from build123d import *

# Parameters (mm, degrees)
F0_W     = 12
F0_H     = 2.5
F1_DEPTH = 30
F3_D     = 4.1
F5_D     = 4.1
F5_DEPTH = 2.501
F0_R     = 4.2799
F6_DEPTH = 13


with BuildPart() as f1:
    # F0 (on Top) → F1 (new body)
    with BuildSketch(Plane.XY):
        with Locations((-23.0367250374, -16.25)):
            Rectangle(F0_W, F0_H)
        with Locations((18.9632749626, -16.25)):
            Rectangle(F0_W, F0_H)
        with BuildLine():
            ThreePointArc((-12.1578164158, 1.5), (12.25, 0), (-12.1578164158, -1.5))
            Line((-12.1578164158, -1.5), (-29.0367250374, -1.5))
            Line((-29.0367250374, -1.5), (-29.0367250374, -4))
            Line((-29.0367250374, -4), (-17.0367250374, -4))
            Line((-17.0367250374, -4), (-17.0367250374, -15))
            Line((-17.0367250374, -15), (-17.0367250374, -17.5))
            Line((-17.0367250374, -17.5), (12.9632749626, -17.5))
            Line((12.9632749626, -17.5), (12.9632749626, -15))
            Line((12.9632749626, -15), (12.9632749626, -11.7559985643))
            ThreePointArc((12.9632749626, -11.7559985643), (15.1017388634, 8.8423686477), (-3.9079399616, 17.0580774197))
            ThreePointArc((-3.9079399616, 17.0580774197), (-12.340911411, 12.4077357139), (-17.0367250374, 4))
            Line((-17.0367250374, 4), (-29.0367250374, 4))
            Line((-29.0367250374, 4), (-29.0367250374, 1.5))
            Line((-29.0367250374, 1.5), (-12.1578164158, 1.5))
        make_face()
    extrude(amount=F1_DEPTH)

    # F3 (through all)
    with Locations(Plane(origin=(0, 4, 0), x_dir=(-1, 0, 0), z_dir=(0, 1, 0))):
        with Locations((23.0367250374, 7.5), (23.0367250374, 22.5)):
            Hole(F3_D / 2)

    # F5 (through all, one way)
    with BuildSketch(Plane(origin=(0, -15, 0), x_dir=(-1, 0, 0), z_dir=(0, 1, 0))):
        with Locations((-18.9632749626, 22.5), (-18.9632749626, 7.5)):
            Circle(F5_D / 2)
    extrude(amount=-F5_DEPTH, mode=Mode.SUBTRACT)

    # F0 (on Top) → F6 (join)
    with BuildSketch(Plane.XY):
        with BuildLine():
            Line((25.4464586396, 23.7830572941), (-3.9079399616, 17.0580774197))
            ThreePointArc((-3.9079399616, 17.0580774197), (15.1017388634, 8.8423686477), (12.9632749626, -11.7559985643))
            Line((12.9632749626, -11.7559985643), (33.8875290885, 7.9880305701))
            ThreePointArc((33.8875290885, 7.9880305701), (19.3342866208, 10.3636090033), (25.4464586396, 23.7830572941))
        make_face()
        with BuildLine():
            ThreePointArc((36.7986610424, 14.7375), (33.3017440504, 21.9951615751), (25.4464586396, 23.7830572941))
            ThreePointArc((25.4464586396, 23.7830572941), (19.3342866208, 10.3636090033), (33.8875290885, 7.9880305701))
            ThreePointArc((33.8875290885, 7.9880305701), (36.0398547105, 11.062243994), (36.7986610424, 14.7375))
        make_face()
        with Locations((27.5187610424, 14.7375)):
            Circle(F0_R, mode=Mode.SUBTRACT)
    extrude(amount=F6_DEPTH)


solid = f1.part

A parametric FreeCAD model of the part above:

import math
import FreeCAD as App
import Part
import Sketcher
from FreeCAD import Vector
Q = App.Units.Quantity

doc = App.newDocument("Part")
body = doc.addObject("PartDesign::Body", "Body")

sketch1 = body.newObject("Sketcher::SketchObject", "Sketch")
sketch1.AttachmentSupport = (doc.getObject("XY_Plane"), [""])
sketch1.MapMode = "FlatFace"
sketch1.addGeometry(Part.LineSegment(Vector(-29.036725, -15, 0), Vector(-29.036725, -17.5, 0)), False)
sketch1.addGeometry(Part.LineSegment(Vector(-29.036725, -17.5, 0), Vector(24.963275, -17.5, 0)), False)
sketch1.addGeometry(Part.LineSegment(Vector(24.963275, -17.5, 0), Vector(24.963275, -15, 0)), False)
sketch1.addGeometry(Part.LineSegment(Vector(24.963275, -15, 0), Vector(12.963275, -15, 0)), False)
sketch1.addGeometry(Part.LineSegment(Vector(12.963275, -15, 0), Vector(12.963275, -11.755999, 0)), False)
sketch1.addGeometry(Part.ArcOfCircle(Part.Circle(Vector(0, 0, 0), Vector(0, 0, 1), 17.5), math.radians(-42.203926), math.radians(102.90357)), False)
sketch1.addGeometry(Part.ArcOfCircle(Part.Circle(Vector(0, 0, 0), Vector(0, 0, 1), 17.5), math.radians(102.90357), math.radians(166.78702)), False)
sketch1.addGeometry(Part.LineSegment(Vector(-17.036725, 4, 0), Vector(-29.036725, 4, 0)), False)
sketch1.addGeometry(Part.LineSegment(Vector(-29.036725, 4, 0), Vector(-29.036725, 1.5, 0)), False)
sketch1.addGeometry(Part.LineSegment(Vector(-29.036725, 1.5, 0), Vector(-12.157816, 1.5, 0)), False)
sketch1.addGeometry(Part.ArcOfCircle(Part.Circle(Vector(0, 0, 0), Vector(0, 0, 1), 12.25), math.radians(-172.966539), math.radians(172.966539)), False)
sketch1.addGeometry(Part.LineSegment(Vector(-12.157816, -1.5, 0), Vector(-29.036725, -1.5, 0)), False)
sketch1.addGeometry(Part.LineSegment(Vector(-29.036725, -1.5, 0), Vector(-29.036725, -4, 0)), False)
sketch1.addGeometry(Part.LineSegment(Vector(-29.036725, -4, 0), Vector(-17.036725, -4, 0)), False)
sketch1.addGeometry(Part.LineSegment(Vector(-17.036725, -4, 0), Vector(-17.036725, -15, 0)), False)
sketch1.addGeometry(Part.LineSegment(Vector(-17.036725, -15, 0), Vector(-29.036725, -15, 0)), False)
sketch1.addConstraint(Sketcher.Constraint("Coincident", 0, 2, 1, 1))
sketch1.addConstraint(Sketcher.Constraint("Coincident", 1, 2, 2, 1))
sketch1.addConstraint(Sketcher.Constraint("Coincident", 2, 2, 3, 1))
sketch1.addConstraint(Sketcher.Constraint("Coincident", 3, 2, 4, 1))
sketch1.addConstraint(Sketcher.Constraint("Coincident", 4, 2, 5, 1))
sketch1.addConstraint(Sketcher.Constraint("Tangent", 5, 2, 6, 1))
sketch1.addConstraint(Sketcher.Constraint("Coincident", 6, 2, 7, 1))
sketch1.addConstraint(Sketcher.Constraint("Coincident", 7, 2, 8, 1))
sketch1.addConstraint(Sketcher.Constraint("Coincident", 8, 2, 9, 1))
sketch1.addConstraint(Sketcher.Constraint("Coincident", 9, 2, 10, 2))
sketch1.addConstraint(Sketcher.Constraint("Coincident", 10, 1, 11, 1))
sketch1.addConstraint(Sketcher.Constraint("Coincident", 11, 2, 12, 1))
sketch1.addConstraint(Sketcher.Constraint("Coincident", 12, 2, 13, 1))
sketch1.addConstraint(Sketcher.Constraint("Coincident", 13, 2, 14, 1))
sketch1.addConstraint(Sketcher.Constraint("Coincident", 14, 2, 15, 1))
sketch1.addConstraint(Sketcher.Constraint("Coincident", 15, 2, 0, 1))
sketch1.addConstraint(Sketcher.Constraint("Vertical", 0))
sketch1.addConstraint(Sketcher.Constraint("Horizontal", 1))
sketch1.addConstraint(Sketcher.Constraint("Vertical", 2))
sketch1.addConstraint(Sketcher.Constraint("Horizontal", 3))
sketch1.addConstraint(Sketcher.Constraint("Vertical", 4))
sketch1.addConstraint(Sketcher.Constraint("Horizontal", 7))
sketch1.addConstraint(Sketcher.Constraint("Vertical", 8))
sketch1.addConstraint(Sketcher.Constraint("Horizontal", 9))
sketch1.addConstraint(Sketcher.Constraint("Horizontal", 11))
sketch1.addConstraint(Sketcher.Constraint("Vertical", 12))
sketch1.addConstraint(Sketcher.Constraint("Horizontal", 13))
sketch1.addConstraint(Sketcher.Constraint("Vertical", 14))
sketch1.addConstraint(Sketcher.Constraint("Horizontal", 15))
sketch1.addConstraint(Sketcher.Constraint("Coincident", 5, 3, -1, 1))
sketch1.addConstraint(Sketcher.Constraint("Coincident", 10, 3, -1, 1))
sketch1.addConstraint(Sketcher.Constraint("Equal", 5, 6))
sketch1.addConstraint(Sketcher.Constraint("Symmetric", 8, 2, 11, 2, -1))
sketch1.addConstraint(Sketcher.Constraint("Symmetric", 6, 2, 13, 2, -1))
sketch1.addConstraint(Sketcher.Constraint("Horizontal", 3, 2, 14, 2))
sketch1.addConstraint(Sketcher.Constraint("Vertical", 0, 2, 7, 2))
sketch1.addConstraint(Sketcher.Constraint("Equal", 3, 7))
sketch1.addConstraint(Sketcher.Constraint("Equal", 2, 8))
sketch1.addConstraint(Sketcher.Constraint("Radius", 5, Q("17.5 mm")))
sketch1.addConstraint(Sketcher.Constraint("DistanceX", 1, 1, 1, 2, Q("54 mm")))
sketch1.addConstraint(Sketcher.Constraint("DistanceX", 3, 2, 3, 1, Q("12 mm")))
sketch1.addConstraint(Sketcher.Constraint("DistanceY", 14, 2, 14, 1, Q("11 mm")))
sketch1.addConstraint(Sketcher.Constraint("Radius", 10, Q("12.25 mm")))
sketch1.addConstraint(Sketcher.Constraint("DistanceY", 0, 2, 0, 1, Q("2.5 mm")))
sketch1.addConstraint(Sketcher.Constraint("DistanceY", 2, 2, -1, 1, Q("15 mm")))
sketch1.addConstraint(Sketcher.Constraint("DistanceX", 5, 2, -1, 1, Q("3.90794 mm")))
pad1 = body.newObject("PartDesign::Pad", "Pad")
pad1.Profile = sketch1
pad1.Length = 30

sketch2 = body.newObject("Sketcher::SketchObject", "Sketch001")
sketch2.AttachmentSupport = (doc.getObject("XZ_Plane"), [""])
sketch2.MapMode = "FlatFace"
sketch2.AttachmentOffset = App.Placement(Vector(0, 0, -4), App.Rotation())
sketch2.addGeometry(Part.Circle(Vector(-23.036725, 7.5, 0), Vector(0, 0, 1), 2.05), False)
sketch2.addGeometry(Part.Circle(Vector(-23.036725, 22.5, 0), Vector(0, 0, 1), 2.05), False)
sketch2.addConstraint(Sketcher.Constraint("Equal", 0, 1))
sketch2.addConstraint(Sketcher.Constraint("Vertical", 0, 3, 1, 3))
sketch2.addConstraint(Sketcher.Constraint("Diameter", 0, Q("4.1 mm")))
sketch2.addConstraint(Sketcher.Constraint("DistanceY", 0, 3, 1, 3, Q("15 mm")))
sketch2.addConstraint(Sketcher.Constraint("DistanceY", -1, 1, 0, 3, Q("7.5 mm")))
sketch2.addConstraint(Sketcher.Constraint("DistanceX", 0, 3, -1, 1, Q("23.036725 mm")))
doc.recompute()
hole = body.newObject("PartDesign::Hole", "Hole")
hole.Profile = sketch2
hole.ThreadType = "None"
hole.Diameter = 4.1
hole.DepthType = "ThroughAll"
hole.Reversed = True

sketch3 = body.newObject("Sketcher::SketchObject", "Sketch002")
sketch3.AttachmentSupport = (doc.getObject("XZ_Plane"), [""])
sketch3.MapMode = "FlatFace"
sketch3.AttachmentOffset = App.Placement(Vector(0, 0, 15), App.Rotation())
sketch3.addGeometry(Part.Circle(Vector(18.963275, 7.5, 0), Vector(0, 0, 1), 2.05), False)
sketch3.addGeometry(Part.Circle(Vector(18.963275, 22.5, 0), Vector(0, 0, 1), 2.05), False)
sketch3.addConstraint(Sketcher.Constraint("Equal", 0, 1))
sketch3.addConstraint(Sketcher.Constraint("Vertical", 0, 3, 1, 3))
sketch3.addConstraint(Sketcher.Constraint("Diameter", 0, Q("4.1 mm")))
sketch3.addConstraint(Sketcher.Constraint("DistanceY", 0, 3, 1, 3, Q("15 mm")))
sketch3.addConstraint(Sketcher.Constraint("DistanceY", -1, 1, 0, 3, Q("7.5 mm")))
sketch3.addConstraint(Sketcher.Constraint("DistanceX", -1, 1, 0, 3, Q("18.963275 mm")))
pocket1 = body.newObject("PartDesign::Pocket", "Pocket")
pocket1.Profile = sketch3
pocket1.Type = "ThroughAll"
pocket1.Reversed = True

sketch4 = body.newObject("Sketcher::SketchObject", "Sketch003")
sketch4.AttachmentSupport = (doc.getObject("XY_Plane"), [""])
sketch4.MapMode = "FlatFace"
sketch4.addGeometry(Part.LineSegment(Vector(25.446459, 23.783057, 0), Vector(-3.90794, 17.058077, 0)), False)
sketch4.addGeometry(Part.ArcOfCircle(Part.Circle(Vector(0, 0, 0), Vector(0, 0, 1), 17.5), math.radians(-42.203926), math.radians(102.90357)), False)
sketch4.addGeometry(Part.LineSegment(Vector(12.963275, -11.755999, 0), Vector(33.887529, 7.988031, 0)), False)
sketch4.addGeometry(Part.ArcOfCircle(Part.Circle(Vector(27.518761, 14.7375, 0), Vector(0, 0, 1), 9.2799), math.radians(-46.662301), math.radians(102.90357)), False)
sketch4.addGeometry(Part.Circle(Vector(27.518761, 14.7375, 0), Vector(0, 0, 1), 4.2799), False)
sketch4.addConstraint(Sketcher.Constraint("Tangent", 0, 2, 1, 2))
sketch4.addConstraint(Sketcher.Constraint("Coincident", 1, 1, 2, 1))
sketch4.addConstraint(Sketcher.Constraint("Tangent", 2, 2, 3, 1))
sketch4.addConstraint(Sketcher.Constraint("Tangent", 3, 2, 0, 1))
sketch4.addConstraint(Sketcher.Constraint("Coincident", 1, 3, -1, 1))
sketch4.addConstraint(Sketcher.Constraint("Coincident", 4, 3, 3, 3))
sketch4.addConstraint(Sketcher.Constraint("Radius", 1, Q("17.5 mm")))
sketch4.addConstraint(Sketcher.Constraint("Diameter", 4, Q("8.5598 mm")))
sketch4.addConstraint(Sketcher.Constraint("Radius", 3, Q("9.2799 mm")))
sketch4.addConstraint(Sketcher.Constraint("DistanceY", 1, 1, -1, 1, Q("11.755999 mm")))
sketch4.addConstraint(Sketcher.Constraint("DistanceY", -1, 1, 3, 3, Q("14.7375 mm")))
sketch4.addConstraint(Sketcher.Constraint("DistanceX", 0, 2, 3, 3, Q("31.426701 mm")))
pad2 = body.newObject("PartDesign::Pad", "Pad001")
pad2.Profile = sketch4
pad2.Length = 13

doc.recompute()
